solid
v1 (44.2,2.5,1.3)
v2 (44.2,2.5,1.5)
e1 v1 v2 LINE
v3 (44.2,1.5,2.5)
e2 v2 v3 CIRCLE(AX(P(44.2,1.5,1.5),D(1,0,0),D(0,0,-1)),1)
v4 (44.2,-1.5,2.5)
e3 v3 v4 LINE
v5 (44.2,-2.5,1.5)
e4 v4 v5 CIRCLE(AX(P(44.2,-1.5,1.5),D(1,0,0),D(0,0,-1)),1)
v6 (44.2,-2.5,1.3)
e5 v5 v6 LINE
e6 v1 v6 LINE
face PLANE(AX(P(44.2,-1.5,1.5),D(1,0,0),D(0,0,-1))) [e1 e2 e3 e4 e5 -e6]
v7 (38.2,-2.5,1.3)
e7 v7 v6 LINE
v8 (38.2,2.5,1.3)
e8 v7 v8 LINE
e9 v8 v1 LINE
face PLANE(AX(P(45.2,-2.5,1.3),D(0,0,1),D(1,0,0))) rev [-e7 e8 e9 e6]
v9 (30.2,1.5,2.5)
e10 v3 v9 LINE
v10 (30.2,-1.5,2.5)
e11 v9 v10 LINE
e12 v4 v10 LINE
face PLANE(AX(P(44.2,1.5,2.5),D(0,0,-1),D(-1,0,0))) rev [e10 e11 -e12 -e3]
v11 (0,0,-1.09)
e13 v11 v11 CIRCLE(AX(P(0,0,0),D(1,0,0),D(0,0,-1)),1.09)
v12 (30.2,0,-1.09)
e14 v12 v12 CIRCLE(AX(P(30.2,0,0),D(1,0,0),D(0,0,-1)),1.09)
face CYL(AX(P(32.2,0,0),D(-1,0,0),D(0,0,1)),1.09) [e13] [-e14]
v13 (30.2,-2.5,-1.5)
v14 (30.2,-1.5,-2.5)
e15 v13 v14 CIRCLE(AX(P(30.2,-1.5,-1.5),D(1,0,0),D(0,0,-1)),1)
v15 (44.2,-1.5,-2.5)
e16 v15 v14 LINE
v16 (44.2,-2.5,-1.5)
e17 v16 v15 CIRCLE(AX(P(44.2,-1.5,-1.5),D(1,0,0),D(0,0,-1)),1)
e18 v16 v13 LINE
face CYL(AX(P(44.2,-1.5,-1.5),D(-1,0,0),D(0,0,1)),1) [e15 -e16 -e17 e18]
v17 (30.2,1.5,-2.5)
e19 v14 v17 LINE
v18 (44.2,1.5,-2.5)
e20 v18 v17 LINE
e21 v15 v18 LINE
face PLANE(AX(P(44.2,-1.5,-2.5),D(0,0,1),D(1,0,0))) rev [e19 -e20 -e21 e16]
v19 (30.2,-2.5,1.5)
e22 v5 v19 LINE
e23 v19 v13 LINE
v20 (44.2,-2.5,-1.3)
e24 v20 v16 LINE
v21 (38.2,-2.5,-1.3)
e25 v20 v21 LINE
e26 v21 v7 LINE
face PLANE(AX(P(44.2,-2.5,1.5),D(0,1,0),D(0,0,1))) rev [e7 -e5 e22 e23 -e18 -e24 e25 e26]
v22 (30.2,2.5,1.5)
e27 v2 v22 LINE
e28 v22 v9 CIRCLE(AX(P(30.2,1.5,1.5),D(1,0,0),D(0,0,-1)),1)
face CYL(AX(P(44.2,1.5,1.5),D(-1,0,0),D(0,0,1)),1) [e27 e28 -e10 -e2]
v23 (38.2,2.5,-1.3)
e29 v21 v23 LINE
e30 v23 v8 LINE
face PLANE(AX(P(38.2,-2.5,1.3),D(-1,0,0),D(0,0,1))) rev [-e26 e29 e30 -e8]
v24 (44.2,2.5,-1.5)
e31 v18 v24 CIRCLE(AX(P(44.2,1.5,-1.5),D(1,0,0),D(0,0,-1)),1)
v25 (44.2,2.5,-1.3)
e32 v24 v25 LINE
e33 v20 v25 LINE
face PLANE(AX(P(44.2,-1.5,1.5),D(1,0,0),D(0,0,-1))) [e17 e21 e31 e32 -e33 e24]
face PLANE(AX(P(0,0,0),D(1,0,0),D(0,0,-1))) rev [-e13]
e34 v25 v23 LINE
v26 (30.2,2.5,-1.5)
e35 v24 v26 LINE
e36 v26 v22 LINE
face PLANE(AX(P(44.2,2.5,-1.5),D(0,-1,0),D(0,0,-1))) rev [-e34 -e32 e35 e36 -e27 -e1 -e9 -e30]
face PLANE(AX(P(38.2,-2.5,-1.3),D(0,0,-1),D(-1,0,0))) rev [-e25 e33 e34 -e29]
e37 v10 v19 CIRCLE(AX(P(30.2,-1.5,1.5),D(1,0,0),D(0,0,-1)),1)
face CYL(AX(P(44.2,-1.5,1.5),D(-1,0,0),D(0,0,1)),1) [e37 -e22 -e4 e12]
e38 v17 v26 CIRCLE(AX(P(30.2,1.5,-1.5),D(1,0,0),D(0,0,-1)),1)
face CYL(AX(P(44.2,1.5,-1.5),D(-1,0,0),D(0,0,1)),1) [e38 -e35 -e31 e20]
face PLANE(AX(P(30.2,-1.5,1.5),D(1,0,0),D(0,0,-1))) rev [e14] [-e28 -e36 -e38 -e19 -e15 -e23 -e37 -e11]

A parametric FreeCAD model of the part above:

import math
import FreeCAD as App
import Part
import Sketcher
from FreeCAD import Vector

doc = App.newDocument("Part")
body = doc.addObject("PartDesign::Body", "Body")

sketch1 = body.newObject("Sketcher::SketchObject", "Sketch")
sketch1.AttachmentSupport = (doc.getObject("YZ_Plane"), [""])
sketch1.MapMode = "FlatFace"
sketch1.addGeometry(Part.Circle(Vector(0, 0, 0), Vector(0, 0, 1), 1.1), False)
sketch1.addConstraint(Sketcher.Constraint("Coincident", 0, 3, -1, 1))
sketch1.addConstraint(Sketcher.Constraint("Diameter", 0, 2.18))
pad1 = body.newObject("PartDesign::Pad", "Pad")
pad1.Profile = sketch1
pad1.Length = 32.2

sketch2 = body.newObject("Sketcher::SketchObject", "Sketch001")
sketch2.AttachmentSupport = (doc.getObject("YZ_Plane"), [""])
sketch2.MapMode = "FlatFace"
sketch2.AttachmentOffset = App.Placement(Vector(0, 0, 30.2), App.Rotation())
sketch2.addGeometry(Part.LineSegment(Vector(-2.5, 1.5, 0), Vector(-2.5, -1.5, 0)), False)
sketch2.addGeometry(Part.ArcOfCircle(Part.Circle(Vector(-1.5, -1.5, 0), Vector(0, 0, 1), 1), math.radians(-180), math.radians(-90)), False)
sketch2.addGeometry(Part.LineSegment(Vector(-1.5, -2.5, 0), Vector(1.5, -2.5, 0)), False)
sketch2.addGeometry(Part.ArcOfCircle(Part.Circle(Vector(1.5, -1.5, 0), Vector(0, 0, 1), 1), math.radians(-90), math.radians(0)), False)
sketch2.addGeometry(Part.LineSegment(Vector(2.5, -1.5, 0), Vector(2.5, 1.5, 0)), False)
sketch2.addGeometry(Part.ArcOfCircle(Part.Circle(Vector(1.5, 1.5, 0), Vector(0, 0, 1), 1), math.radians(0), math.radians(90)), False)
sketch2.addGeometry(Part.LineSegment(Vector(1.5, 2.5, 0), Vector(-1.5, 2.5, 0)), False)
sketch2.addGeometry(Part.ArcOfCircle(Part.Circle(Vector(-1.5, 1.5, 0), Vector(0, 0, 1), 1), math.radians(90), math.radians(180)), False)
sketch2.addConstraint(Sketcher.Constraint("Tangent", 0, 2, 1, 1))
sketch2.addConstraint(Sketcher.Constraint("Tangent", 1, 2, 2, 1))
sketch2.addConstraint(Sketcher.Constraint("Tangent", 2, 2, 3, 1))
sketch2.addConstraint(Sketcher.Constraint("Tangent", 3, 2, 4, 1))
sketch2.addConstraint(Sketcher.Constraint("Tangent", 4, 2, 5, 1))
sketch2.addConstraint(Sketcher.Constraint("Tangent", 5, 2, 6, 1))
sketch2.addConstraint(Sketcher.Constraint("Tangent", 6, 2, 7, 1))
sketch2.addConstraint(Sketcher.Constraint("Tangent", 7, 2, 0, 1))
sketch2.addConstraint(Sketcher.Constraint("Vertical", 0))
sketch2.addConstraint(Sketcher.Constraint("Horizontal", 2))
sketch2.addConstraint(Sketcher.Constraint("Vertical", 4))
sketch2.addConstraint(Sketcher.Constraint("Horizontal", 6))
sketch2.addConstraint(Sketcher.Constraint("Equal", 1, 3))
sketch2.addConstraint(Sketcher.Constraint("Equal", 3, 5))
sketch2.addConstraint(Sketcher.Constraint("Equal", 5, 7))
sketch2.addConstraint(Sketcher.Constraint("Symmetric", 1, 3, 5, 3, -1, 1))
sketch2.addConstraint(Sketcher.Constraint("Equal", 6, 0))
sketch2.addConstraint(Sketcher.Constraint("Radius", 1, 1.0))
sketch2.addConstraint(Sketcher.Constraint("DistanceX", 2, 1, 2, 2, 3.0))
pad2 = body.newObject("PartDesign::Pad", "Pad001")
pad2.Profile = sketch2
pad2.Length = 14

sketch3 = body.newObject("Sketcher::SketchObject", "Sketch002")
sketch3.AttachmentSupport = (doc.getObject("XZ_Plane"), [""])
sketch3.MapMode = "FlatFace"
sketch3.addGeometry(Part.LineSegment(Vector(38.2, -1.3, 0), Vector(38.2, 1.3, 0)), False)
sketch3.addGeometry(Part.LineSegment(Vector(38.2, 1.3, 0), Vector(45.2, 1.3, 0)), False)
sketch3.addGeometry(Part.LineSegment(Vector(45.2, 1.3, 0), Vector(45.2, -1.3, 0)), False)
sketch3.addGeometry(Part.LineSegment(Vector(45.2, -1.3, 0), Vector(38.2, -1.3, 0)), False)
sketch3.addConstraint(Sketcher.Constraint("Coincident", 0, 2, 1, 1))
sketch3.addConstraint(Sketcher.Constraint("Coincident", 1, 2, 2, 1))
sketch3.addConstraint(Sketcher.Constraint("Coincident", 2, 2, 3, 1))
sketch3.addConstraint(Sketcher.Constraint("Coincident", 3, 2, 0, 1))
sketch3.addConstraint(Sketcher.Constraint("Vertical", 0))
sketch3.addConstraint(Sketcher.Constraint("Horizontal", 1))
sketch3.addConstraint(Sketcher.Constraint("Vertical", 2))
sketch3.addConstraint(Sketcher.Constraint("Horizontal", 3))
sketch3.addConstraint(Sketcher.Constraint("DistanceX", 1, 1, 1, 2, 7.0))
sketch3.addConstraint(Sketcher.Constraint("DistanceY", 0, 1, 0, 2, 2.6))
sketch3.addConstraint(Sketcher.Constraint("DistanceX", -1, 1, 0, 2, 38.2))
sketch3.addConstraint(Sketcher.Constraint("DistanceY", -1, 1, 0, 2, 1.3))
pocket1 = body.newObject("PartDesign::Pocket", "Pocket")
pocket1.Profile = sketch3
pocket1.Type = "ThroughAll"
pocket1.Midplane = True

doc.recompute()
